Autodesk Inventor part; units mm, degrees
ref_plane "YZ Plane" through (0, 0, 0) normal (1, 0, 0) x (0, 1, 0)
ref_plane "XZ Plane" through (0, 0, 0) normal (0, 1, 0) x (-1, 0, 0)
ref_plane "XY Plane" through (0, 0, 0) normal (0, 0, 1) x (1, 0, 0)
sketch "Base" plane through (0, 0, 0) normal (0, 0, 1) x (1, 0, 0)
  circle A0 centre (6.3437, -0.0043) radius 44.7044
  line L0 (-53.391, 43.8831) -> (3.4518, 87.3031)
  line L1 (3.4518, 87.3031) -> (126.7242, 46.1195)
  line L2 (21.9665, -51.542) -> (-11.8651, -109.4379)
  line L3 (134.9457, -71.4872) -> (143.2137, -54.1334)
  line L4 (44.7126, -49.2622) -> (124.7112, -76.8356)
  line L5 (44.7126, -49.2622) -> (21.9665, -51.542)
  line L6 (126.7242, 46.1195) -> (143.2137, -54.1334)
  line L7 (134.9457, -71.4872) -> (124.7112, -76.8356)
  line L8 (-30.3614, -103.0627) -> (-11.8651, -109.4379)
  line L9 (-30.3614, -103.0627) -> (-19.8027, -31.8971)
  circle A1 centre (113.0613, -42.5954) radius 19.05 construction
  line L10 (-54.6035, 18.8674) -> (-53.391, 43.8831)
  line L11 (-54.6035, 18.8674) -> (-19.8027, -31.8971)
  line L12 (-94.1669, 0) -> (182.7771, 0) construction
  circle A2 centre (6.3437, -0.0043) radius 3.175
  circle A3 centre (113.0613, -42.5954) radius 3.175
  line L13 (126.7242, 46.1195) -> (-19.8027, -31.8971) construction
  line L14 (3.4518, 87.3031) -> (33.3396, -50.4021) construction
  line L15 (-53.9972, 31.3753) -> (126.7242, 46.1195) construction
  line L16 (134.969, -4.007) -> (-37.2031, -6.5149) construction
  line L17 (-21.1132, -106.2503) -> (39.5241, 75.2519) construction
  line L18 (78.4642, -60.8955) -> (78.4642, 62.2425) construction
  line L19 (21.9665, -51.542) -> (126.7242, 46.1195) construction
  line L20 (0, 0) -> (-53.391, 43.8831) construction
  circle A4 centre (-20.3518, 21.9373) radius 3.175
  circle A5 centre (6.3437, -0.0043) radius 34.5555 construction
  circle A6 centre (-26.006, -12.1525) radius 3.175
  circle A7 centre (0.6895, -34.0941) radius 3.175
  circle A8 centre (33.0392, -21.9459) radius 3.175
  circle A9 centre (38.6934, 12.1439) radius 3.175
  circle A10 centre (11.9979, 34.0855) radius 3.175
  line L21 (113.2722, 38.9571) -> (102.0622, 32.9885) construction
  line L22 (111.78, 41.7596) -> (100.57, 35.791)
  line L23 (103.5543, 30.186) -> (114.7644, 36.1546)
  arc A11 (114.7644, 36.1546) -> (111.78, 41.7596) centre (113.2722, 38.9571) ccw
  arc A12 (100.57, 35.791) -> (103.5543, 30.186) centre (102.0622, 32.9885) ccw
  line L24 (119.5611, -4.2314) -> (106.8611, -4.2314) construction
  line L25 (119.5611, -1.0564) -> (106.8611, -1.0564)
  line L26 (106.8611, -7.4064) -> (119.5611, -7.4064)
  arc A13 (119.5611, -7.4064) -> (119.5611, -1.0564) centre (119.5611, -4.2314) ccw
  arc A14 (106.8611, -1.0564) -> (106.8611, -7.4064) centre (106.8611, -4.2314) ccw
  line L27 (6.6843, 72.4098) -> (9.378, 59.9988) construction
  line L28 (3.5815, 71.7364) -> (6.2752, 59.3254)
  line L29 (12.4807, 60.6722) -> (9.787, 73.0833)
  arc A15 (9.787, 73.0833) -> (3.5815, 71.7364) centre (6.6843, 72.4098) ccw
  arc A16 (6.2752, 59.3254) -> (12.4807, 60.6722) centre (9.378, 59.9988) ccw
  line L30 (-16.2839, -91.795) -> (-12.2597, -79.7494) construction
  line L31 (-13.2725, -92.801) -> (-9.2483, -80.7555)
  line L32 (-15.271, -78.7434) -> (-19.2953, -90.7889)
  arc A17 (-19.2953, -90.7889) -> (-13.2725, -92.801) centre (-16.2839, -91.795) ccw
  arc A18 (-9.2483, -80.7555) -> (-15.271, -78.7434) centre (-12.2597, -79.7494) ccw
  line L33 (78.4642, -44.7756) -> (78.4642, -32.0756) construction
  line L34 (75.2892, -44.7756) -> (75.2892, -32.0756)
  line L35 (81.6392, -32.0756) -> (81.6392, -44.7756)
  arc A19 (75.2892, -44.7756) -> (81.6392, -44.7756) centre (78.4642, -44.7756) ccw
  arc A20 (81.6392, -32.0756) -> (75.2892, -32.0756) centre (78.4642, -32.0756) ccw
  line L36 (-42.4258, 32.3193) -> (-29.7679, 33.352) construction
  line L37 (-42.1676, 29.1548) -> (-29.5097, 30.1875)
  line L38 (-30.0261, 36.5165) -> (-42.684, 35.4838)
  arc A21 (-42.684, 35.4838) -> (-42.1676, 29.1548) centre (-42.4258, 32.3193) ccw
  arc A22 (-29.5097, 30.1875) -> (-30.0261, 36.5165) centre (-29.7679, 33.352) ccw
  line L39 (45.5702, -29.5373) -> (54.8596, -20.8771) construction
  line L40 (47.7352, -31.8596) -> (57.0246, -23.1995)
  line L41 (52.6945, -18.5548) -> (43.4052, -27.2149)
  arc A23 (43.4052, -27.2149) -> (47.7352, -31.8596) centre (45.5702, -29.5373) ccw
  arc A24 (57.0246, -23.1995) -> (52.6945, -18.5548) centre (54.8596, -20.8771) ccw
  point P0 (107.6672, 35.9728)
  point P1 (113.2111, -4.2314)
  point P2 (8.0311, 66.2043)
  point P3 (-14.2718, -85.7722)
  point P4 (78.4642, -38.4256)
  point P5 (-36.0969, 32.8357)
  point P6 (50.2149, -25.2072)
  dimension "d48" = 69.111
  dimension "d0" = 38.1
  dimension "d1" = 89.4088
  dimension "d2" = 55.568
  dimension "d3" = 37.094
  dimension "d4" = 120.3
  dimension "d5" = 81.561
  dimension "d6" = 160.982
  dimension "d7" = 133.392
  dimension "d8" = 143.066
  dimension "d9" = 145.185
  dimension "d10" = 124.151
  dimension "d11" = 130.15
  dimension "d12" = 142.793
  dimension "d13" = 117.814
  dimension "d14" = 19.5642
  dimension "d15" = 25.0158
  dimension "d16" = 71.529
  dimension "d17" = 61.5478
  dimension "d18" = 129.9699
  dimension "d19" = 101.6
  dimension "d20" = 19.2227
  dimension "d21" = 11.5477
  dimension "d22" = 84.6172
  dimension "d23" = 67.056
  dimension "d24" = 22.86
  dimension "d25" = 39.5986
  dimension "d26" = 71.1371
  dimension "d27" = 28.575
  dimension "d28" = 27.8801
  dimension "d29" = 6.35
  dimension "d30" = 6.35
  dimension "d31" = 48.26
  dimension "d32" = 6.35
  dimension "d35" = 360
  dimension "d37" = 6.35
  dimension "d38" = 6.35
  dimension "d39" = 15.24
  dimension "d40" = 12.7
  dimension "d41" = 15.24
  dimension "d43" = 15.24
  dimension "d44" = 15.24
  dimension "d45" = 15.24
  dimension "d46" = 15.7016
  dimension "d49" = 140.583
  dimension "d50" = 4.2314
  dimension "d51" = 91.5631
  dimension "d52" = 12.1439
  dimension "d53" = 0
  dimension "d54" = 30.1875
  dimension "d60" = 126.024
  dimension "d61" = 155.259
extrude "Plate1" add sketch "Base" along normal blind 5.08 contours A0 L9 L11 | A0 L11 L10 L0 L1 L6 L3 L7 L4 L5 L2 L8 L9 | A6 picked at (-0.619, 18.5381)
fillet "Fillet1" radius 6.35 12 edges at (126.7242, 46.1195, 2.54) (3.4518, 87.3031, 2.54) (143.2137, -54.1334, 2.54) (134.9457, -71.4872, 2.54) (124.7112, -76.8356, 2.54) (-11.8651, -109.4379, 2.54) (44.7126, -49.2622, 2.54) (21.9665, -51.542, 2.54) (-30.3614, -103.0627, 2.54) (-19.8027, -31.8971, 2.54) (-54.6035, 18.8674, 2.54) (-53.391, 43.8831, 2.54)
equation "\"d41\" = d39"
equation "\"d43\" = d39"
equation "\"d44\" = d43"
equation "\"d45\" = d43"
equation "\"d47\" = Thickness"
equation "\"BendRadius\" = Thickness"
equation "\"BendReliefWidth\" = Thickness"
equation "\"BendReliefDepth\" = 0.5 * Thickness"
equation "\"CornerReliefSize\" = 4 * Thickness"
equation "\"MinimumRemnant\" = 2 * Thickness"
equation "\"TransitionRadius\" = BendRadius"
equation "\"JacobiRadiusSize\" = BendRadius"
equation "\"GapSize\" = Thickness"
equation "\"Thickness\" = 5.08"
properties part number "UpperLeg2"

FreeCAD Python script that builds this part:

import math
import FreeCAD as App
import Part
import Sketcher
from FreeCAD import Vector
Q = App.Units.Quantity


def edges_at(feature, points):
    """Names of the edges that pass closest to the given points."""
    edges = feature.Shape.Edges
    near = lambda p: min(range(len(edges)), key=lambda i: edges[i].distToShape(Part.Vertex(*p))[0])
    return sorted({f"Edge{near(p) + 1}" for p in points})

doc = App.newDocument("Part")
body = doc.addObject("PartDesign::Body", "Body")

sketch1 = doc.addObject("Sketcher::SketchObject", "Sketch")
body.addObject(sketch1)
sketch1.AttachmentSupport = (doc.XY_Plane, [""])
sketch1.MapMode = "FlatFace"
sketch1.addGeometry([
    Part.LineSegment(Vector(-19.8027, -31.8971, 0), Vector(-30.3614, -103.0627, 0)),
    Part.LineSegment(Vector(-30.3614, -103.0627, 0), Vector(-11.8651, -109.4379, 0)),
    Part.LineSegment(Vector(-11.8651, -109.4379, 0), Vector(21.9665, -51.542, 0)),
    Part.LineSegment(Vector(21.9665, -51.542, 0), Vector(44.7126, -49.2622, 0)),
    Part.LineSegment(Vector(44.7126, -49.2622, 0), Vector(124.7112, -76.8356, 0)),
    Part.LineSegment(Vector(124.7112, -76.8356, 0), Vector(134.9457, -71.4872, 0)),
    Part.LineSegment(Vector(134.9457, -71.4872, 0), Vector(143.2137, -54.1334, 0)),
    Part.LineSegment(Vector(143.2137, -54.1334, 0), Vector(126.7242, 46.1195, 0)),
    Part.LineSegment(Vector(126.7242, 46.1195, 0), Vector(3.4518, 87.3031, 0)),
    Part.LineSegment(Vector(3.4518, 87.3031, 0), Vector(-53.391, 43.8831, 0)),
    Part.LineSegment(Vector(-53.391, 43.8831, 0), Vector(-54.6035, 18.8674, 0)),
    Part.LineSegment(Vector(-54.6035, 18.8674, 0), Vector(-19.8027, -31.8971, 0)),
    Part.Circle(Vector(0.6895, -34.0941, 0), Vector(0, 0, 1), 3.175),
    Part.Circle(Vector(33.0392, -21.9459, 0), Vector(0, 0, 1), 3.175),
    Part.Circle(Vector(-20.3518, 21.9373, 0), Vector(0, 0, 1), 3.175),
    Part.Circle(Vector(6.3437, -0.0043, 0), Vector(0, 0, 1), 3.175),
    Part.Circle(Vector(38.6934, 12.1439, 0), Vector(0, 0, 1), 3.175),
    Part.Circle(Vector(11.9979, 34.0855, 0), Vector(0, 0, 1), 3.175),
    Part.LineSegment(Vector(114.7644, 36.1546, 0), Vector(103.5543, 30.186, 0)),
    Part.ArcOfCircle(Part.Circle(Vector(102.0622, 32.9885, 0), Vector(0, 0, 1), 3.175007), math.radians(118.033211), math.radians(298.031618)),
    Part.LineSegment(Vector(100.57, 35.791, 0), Vector(111.78, 41.7596, 0)),
    Part.ArcOfCircle(Part.Circle(Vector(113.2722, 38.9571, 0), Vector(0, 0, 1), 3.175007), math.radians(-61.966789), math.radians(118.033211)),
    Part.LineSegment(Vector(-9.2483, -80.7555, 0), Vector(-13.2725, -92.801, 0)),
    Part.ArcOfCircle(Part.Circle(Vector(-16.2839, -91.795, 0), Vector(0, 0, 1), 3.175022), math.radians(161.525676), math.radians(341.527387)),
    Part.LineSegment(Vector(-19.2953, -90.7889, 0), Vector(-15.271, -78.7434, 0)),
    Part.ArcOfCircle(Part.Circle(Vector(-12.2597, -79.7494, 0), Vector(0, 0, 1), 3.175022), math.radians(-18.474324), math.radians(161.526816)),
    Part.ArcOfCircle(Part.Circle(Vector(78.4642, -44.7756, 0), Vector(0, 0, 1), 3.175), math.radians(180), math.radians(360)),
    Part.LineSegment(Vector(75.2892, -44.7756, 0), Vector(75.2892, -32.0756, 0)),
    Part.ArcOfCircle(Part.Circle(Vector(78.4642, -32.0756, 0), Vector(0, 0, 1), 3.175), math.radians(0), math.radians(180)),
    Part.LineSegment(Vector(81.6392, -32.0756, 0), Vector(81.6392, -44.7756, 0)),
    Part.LineSegment(Vector(57.0246, -23.1995, 0), Vector(47.7352, -31.8596, 0)),
    Part.ArcOfCircle(Part.Circle(Vector(45.5702, -29.5373, 0), Vector(0, 0, 1), 3.175022), math.radians(132.991117), math.radians(312.992348)),
    Part.LineSegment(Vector(43.4052, -27.2149, 0), Vector(52.6945, -18.5548, 0)),
    Part.ArcOfCircle(Part.Circle(Vector(54.8596, -20.8771, 0), Vector(0, 0, 1), 3.175022), math.radians(-47.008883), math.radians(132.993668)),
    Part.Circle(Vector(113.0613, -42.5954, 0), Vector(0, 0, 1), 3.175),
    Part.LineSegment(Vector(-29.5097, 30.1875, 0), Vector(-42.1676, 29.1548, 0)),
    Part.ArcOfCircle(Part.Circle(Vector(-42.4258, 32.3193, 0), Vector(0, 0, 1), 3.175016), math.radians(94.664583), math.radians(274.664583)),
    Part.LineSegment(Vector(-42.684, 35.4838, 0), Vector(-30.0261, 36.5165, 0)),
    Part.ArcOfCircle(Part.Circle(Vector(-29.7679, 33.352, 0), Vector(0, 0, 1), 3.175016), math.radians(-85.335417), math.radians(94.664583)),
    Part.LineSegment(Vector(6.2752, 59.3254, 0), Vector(3.5815, 71.7364, 0)),
    Part.ArcOfCircle(Part.Circle(Vector(6.6843, 72.4098, 0), Vector(0, 0, 1), 3.174957), math.radians(12.247139), math.radians(192.244993)),
    Part.LineSegment(Vector(9.787, 73.0833, 0), Vector(12.4807, 60.6722, 0)),
    Part.ArcOfCircle(Part.Circle(Vector(9.378, 59.9988, 0), Vector(0, 0, 1), 3.175033), math.radians(-167.755007), math.radians(12.245376)),
    Part.LineSegment(Vector(106.8611, -1.0564, 0), Vector(119.5611, -1.0564, 0)),
    Part.ArcOfCircle(Part.Circle(Vector(119.5611, -4.2314, 0), Vector(0, 0, 1), 3.175), math.radians(-90), math.radians(90)),
    Part.LineSegment(Vector(119.5611, -7.4064, 0), Vector(106.8611, -7.4064, 0)),
    Part.ArcOfCircle(Part.Circle(Vector(106.8611, -4.2314, 0), Vector(0, 0, 1), 3.175), math.radians(90), math.radians(270)),
], False)
sketch1.addConstraint([
    Sketcher.Constraint("Coincident", 0, 2, 1, 1),
    Sketcher.Constraint("Coincident", 1, 2, 2, 1),
    Sketcher.Constraint("Coincident", 2, 2, 3, 1),
    Sketcher.Constraint("Coincident", 3, 2, 4, 1),
    Sketcher.Constraint("Coincident", 4, 2, 5, 1),
    Sketcher.Constraint("Coincident", 5, 2, 6, 1),
    Sketcher.Constraint("Coincident", 6, 2, 7, 1),
    Sketcher.Constraint("Coincident", 7, 2, 8, 1),
    Sketcher.Constraint("Coincident", 8, 2, 9, 1),
    Sketcher.Constraint("Coincident", 9, 2, 10, 1),
    Sketcher.Constraint("Coincident", 10, 2, 11, 1),
    Sketcher.Constraint("Coincident", 11, 2, 0, 1),
    Sketcher.Constraint("Coincident", 18, 2, 19, 2),
    Sketcher.Constraint("Coincident", 19, 1, 20, 1),
    Sketcher.Constraint("Coincident", 20, 2, 21, 2),
    Sketcher.Constraint("Coincident", 21, 1, 18, 1),
    Sketcher.Constraint("Coincident", 22, 2, 23, 2),
    Sketcher.Constraint("Coincident", 23, 1, 24, 1),
    Sketcher.Constraint("Coincident", 24, 2, 25, 2),
    Sketcher.Constraint("Coincident", 25, 1, 22, 1),
    Sketcher.Constraint("Coincident", 26, 1, 27, 1),
    Sketcher.Constraint("Coincident", 27, 2, 28, 2),
    Sketcher.Constraint("Coincident", 28, 1, 29, 1),
    Sketcher.Constraint("Coincident", 29, 2, 26, 2),
    Sketcher.Constraint("Coincident", 30, 2, 31, 2),
    Sketcher.Constraint("Coincident", 31, 1, 32, 1),
    Sketcher.Constraint("Coincident", 32, 2, 33, 2),
    Sketcher.Constraint("Coincident", 33, 1, 30, 1),
    Sketcher.Constraint("Coincident", 35, 2, 36, 2),
    Sketcher.Constraint("Coincident", 36, 1, 37, 1),
    Sketcher.Constraint("Coincident", 37, 2, 38, 2),
    Sketcher.Constraint("Coincident", 38, 1, 35, 1),
    Sketcher.Constraint("Coincident", 39, 2, 40, 2),
    Sketcher.Constraint("Coincident", 40, 1, 41, 1),
    Sketcher.Constraint("Coincident", 41, 2, 42, 2),
    Sketcher.Constraint("Coincident", 42, 1, 39, 1),
    Sketcher.Constraint("Coincident", 43, 2, 44, 2),
    Sketcher.Constraint("Coincident", 44, 1, 45, 1),
    Sketcher.Constraint("Coincident", 45, 2, 46, 2),
    Sketcher.Constraint("Coincident", 46, 1, 43, 1),
    Sketcher.Constraint("Vertical", 27),
    Sketcher.Constraint("Vertical", 29),
    Sketcher.Constraint("Horizontal", 43),
    Sketcher.Constraint("Horizontal", 45),
    Sketcher.Constraint("Diameter", 12, Q("0.25 in")),
    Sketcher.Constraint("Diameter", 13, Q("0.25 in")),
    Sketcher.Constraint("Diameter", 14, Q("0.25 in")),
    Sketcher.Constraint("Diameter", 15, Q("0.25 in")),
    Sketcher.Constraint("Diameter", 16, Q("0.25 in")),
    Sketcher.Constraint("Diameter", 17, Q("0.25 in")),
    Sketcher.Constraint("Diameter", 34, Q("0.25 in")),
    Sketcher.Constraint("Distance", 7, Q("4 in")),
    Sketcher.Constraint("DistanceX", 43, 1, 43, 2, Q("0.5 in")),
    Sketcher.Constraint("DistanceX", 45, 2, 45, 1, Q("0.5 in")),
    Sketcher.Constraint("DistanceY", 27, 1, 27, 2, Q("0.5 in")),
    Sketcher.Constraint("DistanceY", 29, 2, 29, 1, Q("0.5 in")),
    Sketcher.Constraint("Radius", 19, Q("0.125 in")),
    Sketcher.Constraint("Radius", 21, Q("0.125 in")),
    Sketcher.Constraint("Radius", 23, Q("0.125 in")),
    Sketcher.Constraint("Radius", 25, Q("0.125 in")),
    Sketcher.Constraint("Radius", 26, Q("0.125 in")),
    Sketcher.Constraint("Radius", 31, Q("0.125 in")),
    Sketcher.Constraint("Radius", 33, Q("0.125 in")),
    Sketcher.Constraint("Radius", 36, Q("0.125 in")),
    Sketcher.Constraint("Radius", 38, Q("0.125 in")),
    Sketcher.Constraint("Radius", 40, Q("0.125 in")),
    Sketcher.Constraint("Radius", 42, Q("0.125 in")),
    Sketcher.Constraint("Radius", 44, Q("0.125 in")),
    Sketcher.Constraint("Distance", 3, Q("0.9 in")),
    Sketcher.Constraint("Distance", 18, Q("0.5 in")),
    Sketcher.Constraint("Distance", 20, Q("0.5 in")),
    Sketcher.Constraint("Distance", 22, Q("0.5 in")),
    Sketcher.Constraint("Distance", 24, Q("0.5 in")),
    Sketcher.Constraint("Distance", 30, Q("0.5 in")),
    Sketcher.Constraint("Distance", 32, Q("0.5 in")),
    Sketcher.Constraint("Distance", 35, Q("0.5 in")),
    Sketcher.Constraint("Distance", 37, Q("0.5 in")),
    Sketcher.Constraint("Distance", 39, Q("0.5 in")),
    Sketcher.Constraint("Distance", 41, Q("0.5 in")),
    Sketcher.Constraint("Distance", 2, Q("2.64 in")),
    Sketcher.Constraint("Distance", 6, Q("0.7568 in")),
    Sketcher.Constraint("Distance", 9, Q("2.8161 in")),
    Sketcher.Constraint("DistanceY", -1, 1, 16, 3, Q("0.4781 in")),
    Sketcher.Constraint("DistanceY", 44, 3, -1, 1, Q("0.1666 in")),
    Sketcher.Constraint("Distance", 1, Q("19.5642 mm")),
    Sketcher.Constraint("Distance", 4, Q("84.6172 mm")),
    Sketcher.Constraint("Distance", 5, Q("11.5477 mm")),
    Sketcher.Constraint("Distance", 8, Q("129.97 mm")),
    Sketcher.Constraint("Distance", 11, Q("61.5478 mm")),
    Sketcher.Constraint("DistanceY", -1, 1, 38, 1, Q("30.1875 mm")),
    Sketcher.Constraint("DistanceY", 13, 3, -1, 1, Q("0.864 in")),
    Sketcher.Constraint("DistanceX", 9, 2, -1, 1, Q("2.102 in")),
    Sketcher.Constraint("DistanceY", -1, 1, 36, 1, Q("1.397 in")),
    Sketcher.Constraint("DistanceX", -1, 1, 39, 2, Q("0.141 in")),
    Sketcher.Constraint("DistanceX", -1, 1, 19, 3, Q("4.0182 in")),
    Sketcher.Constraint("DistanceX", 23, 3, -1, 1, Q("0.6411 in")),
    Sketcher.Constraint("DistanceX", -1, 1, 31, 3, Q("1.7941 in")),
    Sketcher.Constraint("DistanceX", 36, 3, -1, 1, Q("1.6703 in")),
    Sketcher.Constraint("DistanceX", -1, 1, 4, 2, Q("4.9099 in")),
    Sketcher.Constraint("DistanceX", -1, 1, 8, 2, Q("0.1359 in")),
    Sketcher.Constraint("DistanceY", -1, 1, 10, 2, Q("0.7428 in")),
    Sketcher.Constraint("DistanceY", 11, 2, -1, 1, Q("1.2558 in")),
    Sketcher.Constraint("DistanceY", -1, 1, 19, 1, Q("1.4091 in")),
    Sketcher.Constraint("DistanceY", -1, 1, 21, 1, Q("1.4234 in")),
    Sketcher.Constraint("DistanceX", 25, 1, -1, 1, Q("0.3641 in")),
    Sketcher.Constraint("DistanceY", 32, 2, -1, 1, Q("0.7305 in")),
    Sketcher.Constraint("DistanceX", 38, 1, -1, 1, Q("1.1618 in")),
    Sketcher.Constraint("DistanceY", -1, 1, 40, 1, Q("2.8773 in")),
    Sketcher.Constraint("Distance", 0, Q("71.9446 mm")),
    Sketcher.Constraint("Distance", 10, Q("25.045 mm")),
    Sketcher.Constraint("DistanceX", -1, 1, 12, 3, Q("0.6895 mm")),
    Sketcher.Constraint("DistanceY", 12, 3, -1, 1, Q("34.094 mm")),
    Sketcher.Constraint("DistanceX", -1, 1, 13, 3, Q("33.0392 mm")),
    Sketcher.Constraint("DistanceX", 14, 3, -1, 1, Q("20.3518 mm")),
    Sketcher.Constraint("DistanceY", -1, 1, 14, 3, Q("21.9373 mm")),
    Sketcher.Constraint("DistanceX", -1, 1, 15, 3, Q("6.3437 mm")),
    Sketcher.Constraint("DistanceY", 15, 3, -1, 1, Q("0.0043 mm")),
    Sketcher.Constraint("DistanceX", -1, 1, 16, 3, Q("38.6934 mm")),
    Sketcher.Constraint("DistanceX", -1, 1, 17, 3, Q("11.998 mm")),
    Sketcher.Constraint("DistanceY", -1, 1, 17, 3, Q("34.0855 mm")),
    Sketcher.Constraint("DistanceY", -1, 1, 19, 3, Q("32.9885 mm")),
    Sketcher.Constraint("DistanceX", -1, 1, 21, 3, Q("113.2722 mm")),
    Sketcher.Constraint("DistanceY", -1, 1, 21, 3, Q("38.957 mm")),
    Sketcher.Constraint("DistanceY", 23, 3, -1, 1, Q("91.795 mm")),
    Sketcher.Constraint("DistanceX", 25, 3, -1, 1, Q("12.2597 mm")),
    Sketcher.Constraint("DistanceY", 25, 3, -1, 1, Q("79.7494 mm")),
    Sketcher.Constraint("DistanceX", -1, 1, 26, 3, Q("78.4642 mm")),
    Sketcher.Constraint("DistanceY", 26, 3, -1, 1, Q("44.7756 mm")),
    Sketcher.Constraint("DistanceY", 28, 3, -1, 1, Q("32.0756 mm")),
    Sketcher.Constraint("DistanceY", 31, 3, -1, 1, Q("29.5373 mm")),
    Sketcher.Constraint("DistanceX", -1, 1, 33, 3, Q("54.8596 mm")),
    Sketcher.Constraint("DistanceY", 33, 3, -1, 1, Q("20.877 mm")),
    Sketcher.Constraint("DistanceX", -1, 1, 34, 3, Q("113.0613 mm")),
    Sketcher.Constraint("DistanceY", 34, 3, -1, 1, Q("42.5954 mm")),
    Sketcher.Constraint("DistanceY", -1, 1, 36, 3, Q("32.3193 mm")),
    Sketcher.Constraint("DistanceX", 38, 3, -1, 1, Q("29.768 mm")),
    Sketcher.Constraint("DistanceX", -1, 1, 40, 3, Q("6.6843 mm")),
    Sketcher.Constraint("DistanceY", -1, 1, 40, 3, Q("72.4098 mm")),
    Sketcher.Constraint("DistanceX", -1, 1, 42, 3, Q("9.378 mm")),
    Sketcher.Constraint("DistanceY", -1, 1, 42, 3, Q("59.9988 mm")),
    Sketcher.Constraint("DistanceX", -1, 1, 44, 3, Q("119.561 mm")),
    Sketcher.Constraint("DistanceX", -1, 1, 46, 3, Q("106.861 mm")),
    Sketcher.Constraint("DistanceX", 0, 2, -1, 1, Q("30.3614 mm")),
    Sketcher.Constraint("DistanceY", 0, 2, -1, 1, Q("103.0627 mm")),
    Sketcher.Constraint("DistanceX", 1, 2, -1, 1, Q("11.865 mm")),
    Sketcher.Constraint("DistanceX", -1, 1, 2, 2, Q("21.9665 mm")),
    Sketcher.Constraint("DistanceX", -1, 1, 3, 2, Q("44.7126 mm")),
    Sketcher.Constraint("DistanceX", -1, 1, 5, 2, Q("134.9457 mm")),
    Sketcher.Constraint("DistanceX", -1, 1, 6, 2, Q("143.2137 mm")),
    Sketcher.Constraint("DistanceX", 23, 1, -1, 1, Q("19.2953 mm")),
    Sketcher.Constraint("DistanceY", 26, 1, -1, 1, Q("44.7756 mm")),
    Sketcher.Constraint("DistanceY", 28, 1, -1, 1, Q("32.0756 mm")),
    Sketcher.Constraint("DistanceX", -1, 1, 30, 2, Q("47.7352 mm")),
    Sketcher.Constraint("DistanceX", -1, 1, 43, 2, Q("119.561 mm")),
    Sketcher.Constraint("DistanceX", -1, 1, 44, 1, Q("119.561 mm")),
])
pad1 = doc.addObject("PartDesign::Pad", "Pad")
body.addObject(pad1)
pad1.Profile = sketch1
pad1.Length = Q("0.2 in")
doc.recompute()

fillet = doc.addObject("PartDesign::Fillet", "Fillet")
body.addObject(fillet)
fillet.Base = (pad1, edges_at(pad1, [
    (126.724, 46.12, 2.54),
    (3.452, 87.303, 2.54),
    (143.214, -54.133, 2.54),
    (134.946, -71.487, 2.54),
    (124.711, -76.836, 2.54),
    (-11.865, -109.438, 2.54),
    (44.713, -49.262, 2.54),
    (21.966, -51.542, 2.54),
    (-30.361, -103.063, 2.54),
    (-19.803, -31.897, 2.54),
    (-54.603, 18.867, 2.54),
    (-53.391, 43.883, 2.54),
]))
fillet.Radius = Q("0.25 in")

doc.recompute()
